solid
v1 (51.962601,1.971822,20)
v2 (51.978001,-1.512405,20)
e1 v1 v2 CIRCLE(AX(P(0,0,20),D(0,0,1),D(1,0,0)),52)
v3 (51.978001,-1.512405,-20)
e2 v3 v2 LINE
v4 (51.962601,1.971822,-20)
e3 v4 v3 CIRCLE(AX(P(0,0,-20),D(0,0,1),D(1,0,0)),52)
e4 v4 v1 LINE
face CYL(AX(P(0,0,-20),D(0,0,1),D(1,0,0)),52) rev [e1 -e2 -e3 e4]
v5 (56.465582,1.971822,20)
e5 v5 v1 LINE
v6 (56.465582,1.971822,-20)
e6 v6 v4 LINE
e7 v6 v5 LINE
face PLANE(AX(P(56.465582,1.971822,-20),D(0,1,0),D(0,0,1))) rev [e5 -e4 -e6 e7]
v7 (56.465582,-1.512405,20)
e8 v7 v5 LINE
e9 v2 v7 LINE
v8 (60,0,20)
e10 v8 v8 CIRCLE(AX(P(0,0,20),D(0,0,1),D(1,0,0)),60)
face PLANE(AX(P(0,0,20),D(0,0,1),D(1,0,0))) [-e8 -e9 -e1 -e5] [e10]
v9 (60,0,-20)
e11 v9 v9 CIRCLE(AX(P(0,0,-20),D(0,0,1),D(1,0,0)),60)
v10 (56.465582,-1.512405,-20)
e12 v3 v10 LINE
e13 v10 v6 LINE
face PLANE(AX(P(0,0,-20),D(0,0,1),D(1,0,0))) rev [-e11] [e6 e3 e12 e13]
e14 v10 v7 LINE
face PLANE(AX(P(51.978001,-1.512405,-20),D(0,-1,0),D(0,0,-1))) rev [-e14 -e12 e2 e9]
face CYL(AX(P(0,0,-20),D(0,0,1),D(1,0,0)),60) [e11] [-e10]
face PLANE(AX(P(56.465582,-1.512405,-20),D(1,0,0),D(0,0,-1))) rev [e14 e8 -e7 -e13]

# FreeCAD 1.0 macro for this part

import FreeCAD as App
import Part
import Sketcher

V = App.Vector


def add_polygon(sketch, points):
    """Adds a closed chain of lines whose ends are joined by coincident constraints."""
    first, n = sketch.GeometryCount, len(points)
    for a, b in zip(points, points[1:] + points[:1]):
        sketch.addGeometry(Part.LineSegment(App.Vector(*a, 0), App.Vector(*b, 0)), False)
    for i in range(n):
        sketch.addConstraint(Sketcher.Constraint("Coincident", first + i, 2, first + (i + 1) % n, 1))

doc = App.newDocument("Part")
body = doc.addObject("PartDesign::Body", "Body")

# Sketch on XY plane
sketch1 = body.newObject("Sketcher::SketchObject", "Sketch")
sketch1.AttachmentSupport = (doc.getObject("XY_Plane"), [""])
sketch1.MapMode = "FlatFace"
sketch1.addGeometry([
    Part.Circle(V(0, 0, 0), V(0, 0, 1), 60),
    Part.Circle(V(0, 0, 0), V(0, 0, 1), 52),
], False)
sketch1.addConstraint([
    Sketcher.Constraint("Coincident", 0, 3, -1, 1),
    Sketcher.Constraint("Coincident", 1, 3, -1, 1),
    Sketcher.Constraint("Diameter", 0, 120.0),
    Sketcher.Constraint("Diameter", 1, 104.0),
])
pad1 = body.newObject("PartDesign::Pad", "Pad")
pad1.Profile = sketch1
pad1.Type = "TwoLengths"
pad1.Length = 20
pad1.Length2 = 20

# Sketch on XY plane
sketch2 = body.newObject("Sketcher::SketchObject", "Sketch001")
sketch2.AttachmentSupport = (doc.getObject("XY_Plane"), [""])
sketch2.MapMode = "FlatFace"
add_polygon(sketch2, [(51.978001, -1.512405), (56.465582, -1.512405), (56.465582, 1.971822), (51.962601, 1.971822)])  # lines 0-3
sketch2.addConstraint([
    Sketcher.Constraint("Horizontal", 0),
    Sketcher.Constraint("Vertical", 1),
    Sketcher.Constraint("Horizontal", 2),
    Sketcher.Constraint("DistanceX", -1, 1, 3, 2, 51.978001),
    Sketcher.Constraint("DistanceX", 0, 1, 0, 2, 4.48758),
    Sketcher.Constraint("DistanceX", 2, 2, 2, 1, 4.502981),
    Sketcher.Constraint("Distance", 3, 3.484261),
    Sketcher.Constraint("DistanceY", -1, 1, 1, 2, 1.971822),
])
pocket1 = body.newObject("PartDesign::Pocket", "Pocket")
pocket1.Profile = sketch2
pocket1.Type = "ThroughAll"
pocket1.Midplane = True

doc.recompute()
